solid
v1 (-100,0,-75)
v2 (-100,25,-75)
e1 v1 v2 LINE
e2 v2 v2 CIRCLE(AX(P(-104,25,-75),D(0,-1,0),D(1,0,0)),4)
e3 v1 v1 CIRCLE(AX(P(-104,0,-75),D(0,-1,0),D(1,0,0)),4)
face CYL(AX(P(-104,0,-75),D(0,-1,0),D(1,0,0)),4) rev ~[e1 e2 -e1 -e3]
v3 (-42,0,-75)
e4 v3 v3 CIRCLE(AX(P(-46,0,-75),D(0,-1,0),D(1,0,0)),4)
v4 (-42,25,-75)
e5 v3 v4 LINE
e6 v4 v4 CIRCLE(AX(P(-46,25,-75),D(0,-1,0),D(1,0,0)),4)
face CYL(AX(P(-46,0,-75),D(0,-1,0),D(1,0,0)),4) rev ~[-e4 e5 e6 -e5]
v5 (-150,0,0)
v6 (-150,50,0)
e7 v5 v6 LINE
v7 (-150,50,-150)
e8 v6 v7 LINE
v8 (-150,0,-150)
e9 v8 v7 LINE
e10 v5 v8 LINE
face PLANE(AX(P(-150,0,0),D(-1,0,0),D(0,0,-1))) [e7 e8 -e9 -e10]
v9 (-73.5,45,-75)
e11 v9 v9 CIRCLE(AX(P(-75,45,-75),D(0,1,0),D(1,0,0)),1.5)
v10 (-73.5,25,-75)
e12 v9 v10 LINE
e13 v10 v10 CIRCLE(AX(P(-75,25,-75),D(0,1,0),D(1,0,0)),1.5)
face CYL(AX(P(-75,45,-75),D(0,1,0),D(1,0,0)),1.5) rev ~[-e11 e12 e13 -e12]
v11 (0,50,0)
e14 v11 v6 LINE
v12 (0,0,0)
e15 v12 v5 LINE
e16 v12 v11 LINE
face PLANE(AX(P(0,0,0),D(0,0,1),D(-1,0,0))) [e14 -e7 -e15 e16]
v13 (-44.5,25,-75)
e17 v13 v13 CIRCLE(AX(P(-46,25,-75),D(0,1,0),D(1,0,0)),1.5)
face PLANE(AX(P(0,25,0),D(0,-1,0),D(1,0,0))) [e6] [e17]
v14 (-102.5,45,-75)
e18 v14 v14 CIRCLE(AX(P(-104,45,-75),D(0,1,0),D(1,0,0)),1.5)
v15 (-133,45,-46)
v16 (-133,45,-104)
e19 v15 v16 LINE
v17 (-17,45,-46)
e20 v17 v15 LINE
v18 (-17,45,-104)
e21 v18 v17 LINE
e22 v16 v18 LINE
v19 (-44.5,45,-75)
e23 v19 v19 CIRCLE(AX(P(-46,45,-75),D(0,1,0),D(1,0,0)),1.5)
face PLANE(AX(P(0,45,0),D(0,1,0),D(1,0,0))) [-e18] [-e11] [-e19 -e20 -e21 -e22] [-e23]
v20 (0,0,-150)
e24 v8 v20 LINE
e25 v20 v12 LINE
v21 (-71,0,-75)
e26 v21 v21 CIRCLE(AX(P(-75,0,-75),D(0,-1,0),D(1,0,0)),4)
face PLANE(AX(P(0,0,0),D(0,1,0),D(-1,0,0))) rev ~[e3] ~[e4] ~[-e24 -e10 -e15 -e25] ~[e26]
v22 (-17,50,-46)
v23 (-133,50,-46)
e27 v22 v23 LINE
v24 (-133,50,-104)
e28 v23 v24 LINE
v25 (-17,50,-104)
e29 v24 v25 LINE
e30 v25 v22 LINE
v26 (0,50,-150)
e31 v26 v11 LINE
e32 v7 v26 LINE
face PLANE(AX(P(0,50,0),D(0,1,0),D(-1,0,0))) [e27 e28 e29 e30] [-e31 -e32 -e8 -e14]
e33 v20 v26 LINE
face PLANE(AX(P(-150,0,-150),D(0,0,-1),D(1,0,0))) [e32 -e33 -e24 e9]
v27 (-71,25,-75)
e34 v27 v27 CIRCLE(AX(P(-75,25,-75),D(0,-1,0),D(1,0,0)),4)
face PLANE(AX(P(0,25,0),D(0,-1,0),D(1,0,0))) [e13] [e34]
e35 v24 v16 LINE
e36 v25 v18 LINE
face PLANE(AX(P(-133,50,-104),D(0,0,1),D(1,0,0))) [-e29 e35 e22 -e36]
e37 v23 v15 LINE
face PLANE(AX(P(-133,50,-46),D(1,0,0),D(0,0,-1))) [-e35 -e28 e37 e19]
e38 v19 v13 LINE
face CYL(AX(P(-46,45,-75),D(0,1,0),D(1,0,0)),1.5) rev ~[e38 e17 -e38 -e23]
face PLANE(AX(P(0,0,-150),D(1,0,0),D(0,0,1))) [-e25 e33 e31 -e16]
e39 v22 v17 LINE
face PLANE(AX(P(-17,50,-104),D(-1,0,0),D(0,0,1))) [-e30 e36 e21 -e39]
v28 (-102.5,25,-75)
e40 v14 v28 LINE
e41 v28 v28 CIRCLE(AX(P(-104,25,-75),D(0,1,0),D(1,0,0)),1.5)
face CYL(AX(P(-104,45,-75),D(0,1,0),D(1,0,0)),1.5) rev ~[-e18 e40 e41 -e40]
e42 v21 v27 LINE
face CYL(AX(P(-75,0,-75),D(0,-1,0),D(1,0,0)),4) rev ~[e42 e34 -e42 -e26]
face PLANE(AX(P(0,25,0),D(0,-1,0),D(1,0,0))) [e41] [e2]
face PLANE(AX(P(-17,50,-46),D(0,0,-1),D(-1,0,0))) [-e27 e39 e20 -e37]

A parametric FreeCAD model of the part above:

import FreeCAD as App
import Part
import Sketcher

V = App.Vector
Q = App.Units.Quantity

doc = App.newDocument("Part")
body = doc.addObject("PartDesign::Body", "Body")

sketch1 = body.newObject("Sketcher::SketchObject", "Sketch")
sketch1.AttachmentSupport = (doc.getObject("XZ_Plane"), [""])
sketch1.MapMode = "FlatFace"
sketch1.addGeometry([
    Part.LineSegment(V(-150, 0, 0), V(0, 0, 0)),
    Part.LineSegment(V(0, 0, 0), V(0, -150, 0)),
    Part.LineSegment(V(0, -150, 0), V(-150, -150, 0)),
    Part.LineSegment(V(-150, -150, 0), V(-150, 0, 0)),
], False)
sketch1.addConstraint([
    Sketcher.Constraint("Coincident", 0, 2, 1, 1),
    Sketcher.Constraint("Coincident", 1, 2, 2, 1),
    Sketcher.Constraint("Coincident", 2, 2, 3, 1),
    Sketcher.Constraint("Coincident", 3, 2, 0, 1),
    Sketcher.Constraint("Horizontal", 0),
    Sketcher.Constraint("Vertical", 1),
    Sketcher.Constraint("Horizontal", 2),
    Sketcher.Constraint("Vertical", 3),
    Sketcher.Constraint("Coincident", 0, 2, -1, 1),
    Sketcher.Constraint("Equal", 2, 1),
    Sketcher.Constraint("DistanceX", 0, 1, 0, 2, Q("150 mm")),
])
pad1 = body.newObject("PartDesign::Pad", "Pad")
pad1.Profile = sketch1
pad1.Length = 50
pad1.Reversed = True

sketch2 = body.newObject("Sketcher::SketchObject", "Sketch001")
sketch2.AttachmentSupport = (doc.getObject("XZ_Plane"), [""])
sketch2.MapMode = "FlatFace"
sketch2.AttachmentOffset = App.Placement(V(0, 0, -50), App.Rotation())
sketch2.addGeometry([
    Part.LineSegment(V(-17, -104, 0), V(-133, -104, 0)),
    Part.LineSegment(V(-133, -104, 0), V(-133, -46, 0)),
    Part.LineSegment(V(-133, -46, 0), V(-17, -46, 0)),
    Part.LineSegment(V(-17, -46, 0), V(-17, -104, 0)),
], False)
sketch2.addConstraint([
    Sketcher.Constraint("Coincident", 0, 2, 1, 1),
    Sketcher.Constraint("Coincident", 1, 2, 2, 1),
    Sketcher.Constraint("Coincident", 2, 2, 3, 1),
    Sketcher.Constraint("Coincident", 3, 2, 0, 1),
    Sketcher.Constraint("Horizontal", 0),
    Sketcher.Constraint("Vertical", 1),
    Sketcher.Constraint("Horizontal", 2),
    Sketcher.Constraint("Vertical", 3),
    Sketcher.Constraint("DistanceX", 0, 2, 0, 1, Q("116 mm")),
    Sketcher.Constraint("DistanceY", 1, 1, 1, 2, Q("58 mm")),
    Sketcher.Constraint("DistanceX", 0, 2, -1, 1, Q("133 mm")),
    Sketcher.Constraint("DistanceY", 0, 2, -1, 1, Q("104 mm")),
])
pocket1 = body.newObject("PartDesign::Pocket", "Pocket")
pocket1.Profile = sketch2
pocket1.Length = 5
pocket1.Reversed = True

sketch3 = body.newObject("Sketcher::SketchObject", "Sketch002")
sketch3.AttachmentSupport = (doc.getObject("XZ_Plane"), [""])
sketch3.MapMode = "FlatFace"
sketch3.AttachmentOffset = App.Placement(V(0, 0, -45), App.Rotation())
sketch3.addGeometry([
    Part.Circle(V(-104, -75, 0), V(0, 0, 1), 1.5),
    Part.Circle(V(-75, -75, 0), V(0, 0, 1), 1.5),
    Part.Circle(V(-46, -75, 0), V(0, 0, 1), 1.5),
], False)
sketch3.addConstraint([
    Sketcher.Constraint("Equal", 0, 1),
    Sketcher.Constraint("Equal", 1, 2),
    Sketcher.Constraint("Horizontal", 0, 3, 1, 3),
    Sketcher.Constraint("Horizontal", 1, 3, 2, 3),
    Sketcher.Constraint("Diameter", 0, Q("3 mm")),
    Sketcher.Constraint("DistanceX", 0, 3, -1, 1, Q("104 mm")),
    Sketcher.Constraint("DistanceY", 0, 3, -1, 1, Q("75 mm")),
    Sketcher.Constraint("DistanceX", 1, 3, -1, 1, Q("75 mm")),
    Sketcher.Constraint("DistanceX", 2, 3, -1, 1, Q("46 mm")),
])
pocket2 = body.newObject("PartDesign::Pocket", "Pocket001")
pocket2.Profile = sketch3
pocket2.Length = 45
pocket2.Reversed = True

sketch4 = body.newObject("Sketcher::SketchObject", "Sketch003")
sketch4.AttachmentSupport = (doc.getObject("XZ_Plane"), [""])
sketch4.MapMode = "FlatFace"
sketch4.addGeometry([
    Part.Circle(V(-46, -75, 0), V(0, 0, 1), 4),
    Part.Circle(V(-75, -75, 0), V(0, 0, 1), 4),
    Part.Circle(V(-104, -75, 0), V(0, 0, 1), 4),
], False)
sketch4.addConstraint([
    Sketcher.Constraint("Equal", 0, 1),
    Sketcher.Constraint("Equal", 1, 2),
    Sketcher.Constraint("Horizontal", 0, 3, 1, 3),
    Sketcher.Constraint("Horizontal", 1, 3, 2, 3),
    Sketcher.Constraint("Diameter", 0, Q("8 mm")),
    Sketcher.Constraint("DistanceX", 0, 3, -1, 1, Q("46 mm")),
    Sketcher.Constraint("DistanceY", 0, 3, -1, 1, Q("75 mm")),
    Sketcher.Constraint("DistanceX", 1, 3, -1, 1, Q("75 mm")),
    Sketcher.Constraint("DistanceX", 2, 3, -1, 1, Q("104 mm")),
])
pocket3 = body.newObject("PartDesign::Pocket", "Pocket002")
pocket3.Profile = sketch4
pocket3.Length = 25

doc.recompute()
